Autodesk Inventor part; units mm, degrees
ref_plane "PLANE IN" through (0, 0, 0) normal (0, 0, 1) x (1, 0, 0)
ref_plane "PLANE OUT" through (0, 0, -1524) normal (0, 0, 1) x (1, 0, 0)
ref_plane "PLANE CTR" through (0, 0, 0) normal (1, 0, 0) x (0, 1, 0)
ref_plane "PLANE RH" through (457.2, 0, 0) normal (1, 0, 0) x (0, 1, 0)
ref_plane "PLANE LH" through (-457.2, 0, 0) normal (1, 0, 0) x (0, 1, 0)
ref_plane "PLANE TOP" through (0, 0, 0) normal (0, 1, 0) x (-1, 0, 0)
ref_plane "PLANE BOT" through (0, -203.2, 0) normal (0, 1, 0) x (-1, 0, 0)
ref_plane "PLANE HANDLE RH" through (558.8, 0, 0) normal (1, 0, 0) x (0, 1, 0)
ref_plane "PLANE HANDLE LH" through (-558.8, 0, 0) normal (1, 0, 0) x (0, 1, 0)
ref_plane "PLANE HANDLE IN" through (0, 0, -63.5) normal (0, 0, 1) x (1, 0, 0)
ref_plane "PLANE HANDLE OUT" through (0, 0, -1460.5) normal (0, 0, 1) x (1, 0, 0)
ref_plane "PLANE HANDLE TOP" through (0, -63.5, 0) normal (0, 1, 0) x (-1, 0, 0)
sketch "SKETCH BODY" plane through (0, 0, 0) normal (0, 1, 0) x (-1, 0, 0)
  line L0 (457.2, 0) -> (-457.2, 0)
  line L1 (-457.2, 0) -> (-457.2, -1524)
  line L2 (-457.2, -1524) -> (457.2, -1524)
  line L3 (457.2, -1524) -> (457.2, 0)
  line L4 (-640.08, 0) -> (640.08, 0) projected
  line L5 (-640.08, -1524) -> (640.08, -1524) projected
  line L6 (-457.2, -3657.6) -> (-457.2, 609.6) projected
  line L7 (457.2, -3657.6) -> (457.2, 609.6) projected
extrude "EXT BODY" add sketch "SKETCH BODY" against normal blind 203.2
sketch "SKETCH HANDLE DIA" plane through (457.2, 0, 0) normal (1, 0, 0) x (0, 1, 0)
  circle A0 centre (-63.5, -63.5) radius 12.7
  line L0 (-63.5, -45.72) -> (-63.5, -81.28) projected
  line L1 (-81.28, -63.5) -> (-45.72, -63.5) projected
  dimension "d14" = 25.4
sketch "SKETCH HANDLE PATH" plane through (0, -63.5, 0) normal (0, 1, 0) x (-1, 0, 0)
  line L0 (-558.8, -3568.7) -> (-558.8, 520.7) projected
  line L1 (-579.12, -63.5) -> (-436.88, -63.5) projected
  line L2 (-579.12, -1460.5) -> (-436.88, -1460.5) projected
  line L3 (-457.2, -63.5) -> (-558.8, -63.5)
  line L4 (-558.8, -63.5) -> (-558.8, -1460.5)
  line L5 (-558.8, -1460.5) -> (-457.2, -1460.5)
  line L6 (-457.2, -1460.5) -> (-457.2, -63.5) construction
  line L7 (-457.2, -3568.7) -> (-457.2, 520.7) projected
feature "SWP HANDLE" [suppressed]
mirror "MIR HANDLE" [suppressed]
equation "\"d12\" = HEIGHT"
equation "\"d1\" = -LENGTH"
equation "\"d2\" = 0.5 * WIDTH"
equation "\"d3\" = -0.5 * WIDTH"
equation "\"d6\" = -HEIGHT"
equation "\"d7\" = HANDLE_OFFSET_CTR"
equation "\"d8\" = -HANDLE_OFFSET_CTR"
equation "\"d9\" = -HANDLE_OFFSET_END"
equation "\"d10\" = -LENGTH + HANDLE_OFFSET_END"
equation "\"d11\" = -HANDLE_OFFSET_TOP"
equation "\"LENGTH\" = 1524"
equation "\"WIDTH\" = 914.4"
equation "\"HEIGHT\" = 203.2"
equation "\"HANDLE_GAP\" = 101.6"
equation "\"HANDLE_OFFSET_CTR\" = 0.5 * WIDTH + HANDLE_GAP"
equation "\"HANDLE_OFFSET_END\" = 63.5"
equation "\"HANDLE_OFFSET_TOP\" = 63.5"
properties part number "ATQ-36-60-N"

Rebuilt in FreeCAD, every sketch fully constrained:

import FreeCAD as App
import Part
import Sketcher
from FreeCAD import Vector
Q = App.Units.Quantity


def add_polygon(sketch, points):
    """Adds a closed chain of lines whose ends are joined by coincident constraints."""
    first, n = sketch.GeometryCount, len(points)
    for a, b in zip(points, points[1:] + points[:1]):
        sketch.addGeometry(Part.LineSegment(App.Vector(*a, 0), App.Vector(*b, 0)), False)
    for i in range(n):
        sketch.addConstraint(Sketcher.Constraint("Coincident", first + i, 2, first + (i + 1) % n, 1))

doc = App.newDocument("Part")
body = doc.addObject("PartDesign::Body", "Body")

sketch1 = body.newObject("Sketcher::SketchObject", "Sketch")
sketch1.AttachmentSupport = (doc.getObject("XZ_Plane"), [""])
sketch1.MapMode = "FlatFace"
add_polygon(sketch1, [(-457, -1524), (-457, 0), (457, 0), (457, -1524)])
sketch1.addConstraint([
    Sketcher.Constraint("Vertical", 0),
    Sketcher.Constraint("Horizontal", 1),
    Sketcher.Constraint("Vertical", 2),
    Sketcher.Constraint("Horizontal", 3),
    Sketcher.Constraint("Symmetric", 0, 2, 1, 2, -1, 1),
    Sketcher.Constraint("DistanceX", 1, 1, 1, 2, Q("36 in")),
    Sketcher.Constraint("DistanceY", 0, 1, 0, 2, Q("60 in")),
])
pad1 = body.newObject("PartDesign::Pad", "Pad")
pad1.Profile = sketch1
pad1.Length = Q("8 in")

doc.recompute()
